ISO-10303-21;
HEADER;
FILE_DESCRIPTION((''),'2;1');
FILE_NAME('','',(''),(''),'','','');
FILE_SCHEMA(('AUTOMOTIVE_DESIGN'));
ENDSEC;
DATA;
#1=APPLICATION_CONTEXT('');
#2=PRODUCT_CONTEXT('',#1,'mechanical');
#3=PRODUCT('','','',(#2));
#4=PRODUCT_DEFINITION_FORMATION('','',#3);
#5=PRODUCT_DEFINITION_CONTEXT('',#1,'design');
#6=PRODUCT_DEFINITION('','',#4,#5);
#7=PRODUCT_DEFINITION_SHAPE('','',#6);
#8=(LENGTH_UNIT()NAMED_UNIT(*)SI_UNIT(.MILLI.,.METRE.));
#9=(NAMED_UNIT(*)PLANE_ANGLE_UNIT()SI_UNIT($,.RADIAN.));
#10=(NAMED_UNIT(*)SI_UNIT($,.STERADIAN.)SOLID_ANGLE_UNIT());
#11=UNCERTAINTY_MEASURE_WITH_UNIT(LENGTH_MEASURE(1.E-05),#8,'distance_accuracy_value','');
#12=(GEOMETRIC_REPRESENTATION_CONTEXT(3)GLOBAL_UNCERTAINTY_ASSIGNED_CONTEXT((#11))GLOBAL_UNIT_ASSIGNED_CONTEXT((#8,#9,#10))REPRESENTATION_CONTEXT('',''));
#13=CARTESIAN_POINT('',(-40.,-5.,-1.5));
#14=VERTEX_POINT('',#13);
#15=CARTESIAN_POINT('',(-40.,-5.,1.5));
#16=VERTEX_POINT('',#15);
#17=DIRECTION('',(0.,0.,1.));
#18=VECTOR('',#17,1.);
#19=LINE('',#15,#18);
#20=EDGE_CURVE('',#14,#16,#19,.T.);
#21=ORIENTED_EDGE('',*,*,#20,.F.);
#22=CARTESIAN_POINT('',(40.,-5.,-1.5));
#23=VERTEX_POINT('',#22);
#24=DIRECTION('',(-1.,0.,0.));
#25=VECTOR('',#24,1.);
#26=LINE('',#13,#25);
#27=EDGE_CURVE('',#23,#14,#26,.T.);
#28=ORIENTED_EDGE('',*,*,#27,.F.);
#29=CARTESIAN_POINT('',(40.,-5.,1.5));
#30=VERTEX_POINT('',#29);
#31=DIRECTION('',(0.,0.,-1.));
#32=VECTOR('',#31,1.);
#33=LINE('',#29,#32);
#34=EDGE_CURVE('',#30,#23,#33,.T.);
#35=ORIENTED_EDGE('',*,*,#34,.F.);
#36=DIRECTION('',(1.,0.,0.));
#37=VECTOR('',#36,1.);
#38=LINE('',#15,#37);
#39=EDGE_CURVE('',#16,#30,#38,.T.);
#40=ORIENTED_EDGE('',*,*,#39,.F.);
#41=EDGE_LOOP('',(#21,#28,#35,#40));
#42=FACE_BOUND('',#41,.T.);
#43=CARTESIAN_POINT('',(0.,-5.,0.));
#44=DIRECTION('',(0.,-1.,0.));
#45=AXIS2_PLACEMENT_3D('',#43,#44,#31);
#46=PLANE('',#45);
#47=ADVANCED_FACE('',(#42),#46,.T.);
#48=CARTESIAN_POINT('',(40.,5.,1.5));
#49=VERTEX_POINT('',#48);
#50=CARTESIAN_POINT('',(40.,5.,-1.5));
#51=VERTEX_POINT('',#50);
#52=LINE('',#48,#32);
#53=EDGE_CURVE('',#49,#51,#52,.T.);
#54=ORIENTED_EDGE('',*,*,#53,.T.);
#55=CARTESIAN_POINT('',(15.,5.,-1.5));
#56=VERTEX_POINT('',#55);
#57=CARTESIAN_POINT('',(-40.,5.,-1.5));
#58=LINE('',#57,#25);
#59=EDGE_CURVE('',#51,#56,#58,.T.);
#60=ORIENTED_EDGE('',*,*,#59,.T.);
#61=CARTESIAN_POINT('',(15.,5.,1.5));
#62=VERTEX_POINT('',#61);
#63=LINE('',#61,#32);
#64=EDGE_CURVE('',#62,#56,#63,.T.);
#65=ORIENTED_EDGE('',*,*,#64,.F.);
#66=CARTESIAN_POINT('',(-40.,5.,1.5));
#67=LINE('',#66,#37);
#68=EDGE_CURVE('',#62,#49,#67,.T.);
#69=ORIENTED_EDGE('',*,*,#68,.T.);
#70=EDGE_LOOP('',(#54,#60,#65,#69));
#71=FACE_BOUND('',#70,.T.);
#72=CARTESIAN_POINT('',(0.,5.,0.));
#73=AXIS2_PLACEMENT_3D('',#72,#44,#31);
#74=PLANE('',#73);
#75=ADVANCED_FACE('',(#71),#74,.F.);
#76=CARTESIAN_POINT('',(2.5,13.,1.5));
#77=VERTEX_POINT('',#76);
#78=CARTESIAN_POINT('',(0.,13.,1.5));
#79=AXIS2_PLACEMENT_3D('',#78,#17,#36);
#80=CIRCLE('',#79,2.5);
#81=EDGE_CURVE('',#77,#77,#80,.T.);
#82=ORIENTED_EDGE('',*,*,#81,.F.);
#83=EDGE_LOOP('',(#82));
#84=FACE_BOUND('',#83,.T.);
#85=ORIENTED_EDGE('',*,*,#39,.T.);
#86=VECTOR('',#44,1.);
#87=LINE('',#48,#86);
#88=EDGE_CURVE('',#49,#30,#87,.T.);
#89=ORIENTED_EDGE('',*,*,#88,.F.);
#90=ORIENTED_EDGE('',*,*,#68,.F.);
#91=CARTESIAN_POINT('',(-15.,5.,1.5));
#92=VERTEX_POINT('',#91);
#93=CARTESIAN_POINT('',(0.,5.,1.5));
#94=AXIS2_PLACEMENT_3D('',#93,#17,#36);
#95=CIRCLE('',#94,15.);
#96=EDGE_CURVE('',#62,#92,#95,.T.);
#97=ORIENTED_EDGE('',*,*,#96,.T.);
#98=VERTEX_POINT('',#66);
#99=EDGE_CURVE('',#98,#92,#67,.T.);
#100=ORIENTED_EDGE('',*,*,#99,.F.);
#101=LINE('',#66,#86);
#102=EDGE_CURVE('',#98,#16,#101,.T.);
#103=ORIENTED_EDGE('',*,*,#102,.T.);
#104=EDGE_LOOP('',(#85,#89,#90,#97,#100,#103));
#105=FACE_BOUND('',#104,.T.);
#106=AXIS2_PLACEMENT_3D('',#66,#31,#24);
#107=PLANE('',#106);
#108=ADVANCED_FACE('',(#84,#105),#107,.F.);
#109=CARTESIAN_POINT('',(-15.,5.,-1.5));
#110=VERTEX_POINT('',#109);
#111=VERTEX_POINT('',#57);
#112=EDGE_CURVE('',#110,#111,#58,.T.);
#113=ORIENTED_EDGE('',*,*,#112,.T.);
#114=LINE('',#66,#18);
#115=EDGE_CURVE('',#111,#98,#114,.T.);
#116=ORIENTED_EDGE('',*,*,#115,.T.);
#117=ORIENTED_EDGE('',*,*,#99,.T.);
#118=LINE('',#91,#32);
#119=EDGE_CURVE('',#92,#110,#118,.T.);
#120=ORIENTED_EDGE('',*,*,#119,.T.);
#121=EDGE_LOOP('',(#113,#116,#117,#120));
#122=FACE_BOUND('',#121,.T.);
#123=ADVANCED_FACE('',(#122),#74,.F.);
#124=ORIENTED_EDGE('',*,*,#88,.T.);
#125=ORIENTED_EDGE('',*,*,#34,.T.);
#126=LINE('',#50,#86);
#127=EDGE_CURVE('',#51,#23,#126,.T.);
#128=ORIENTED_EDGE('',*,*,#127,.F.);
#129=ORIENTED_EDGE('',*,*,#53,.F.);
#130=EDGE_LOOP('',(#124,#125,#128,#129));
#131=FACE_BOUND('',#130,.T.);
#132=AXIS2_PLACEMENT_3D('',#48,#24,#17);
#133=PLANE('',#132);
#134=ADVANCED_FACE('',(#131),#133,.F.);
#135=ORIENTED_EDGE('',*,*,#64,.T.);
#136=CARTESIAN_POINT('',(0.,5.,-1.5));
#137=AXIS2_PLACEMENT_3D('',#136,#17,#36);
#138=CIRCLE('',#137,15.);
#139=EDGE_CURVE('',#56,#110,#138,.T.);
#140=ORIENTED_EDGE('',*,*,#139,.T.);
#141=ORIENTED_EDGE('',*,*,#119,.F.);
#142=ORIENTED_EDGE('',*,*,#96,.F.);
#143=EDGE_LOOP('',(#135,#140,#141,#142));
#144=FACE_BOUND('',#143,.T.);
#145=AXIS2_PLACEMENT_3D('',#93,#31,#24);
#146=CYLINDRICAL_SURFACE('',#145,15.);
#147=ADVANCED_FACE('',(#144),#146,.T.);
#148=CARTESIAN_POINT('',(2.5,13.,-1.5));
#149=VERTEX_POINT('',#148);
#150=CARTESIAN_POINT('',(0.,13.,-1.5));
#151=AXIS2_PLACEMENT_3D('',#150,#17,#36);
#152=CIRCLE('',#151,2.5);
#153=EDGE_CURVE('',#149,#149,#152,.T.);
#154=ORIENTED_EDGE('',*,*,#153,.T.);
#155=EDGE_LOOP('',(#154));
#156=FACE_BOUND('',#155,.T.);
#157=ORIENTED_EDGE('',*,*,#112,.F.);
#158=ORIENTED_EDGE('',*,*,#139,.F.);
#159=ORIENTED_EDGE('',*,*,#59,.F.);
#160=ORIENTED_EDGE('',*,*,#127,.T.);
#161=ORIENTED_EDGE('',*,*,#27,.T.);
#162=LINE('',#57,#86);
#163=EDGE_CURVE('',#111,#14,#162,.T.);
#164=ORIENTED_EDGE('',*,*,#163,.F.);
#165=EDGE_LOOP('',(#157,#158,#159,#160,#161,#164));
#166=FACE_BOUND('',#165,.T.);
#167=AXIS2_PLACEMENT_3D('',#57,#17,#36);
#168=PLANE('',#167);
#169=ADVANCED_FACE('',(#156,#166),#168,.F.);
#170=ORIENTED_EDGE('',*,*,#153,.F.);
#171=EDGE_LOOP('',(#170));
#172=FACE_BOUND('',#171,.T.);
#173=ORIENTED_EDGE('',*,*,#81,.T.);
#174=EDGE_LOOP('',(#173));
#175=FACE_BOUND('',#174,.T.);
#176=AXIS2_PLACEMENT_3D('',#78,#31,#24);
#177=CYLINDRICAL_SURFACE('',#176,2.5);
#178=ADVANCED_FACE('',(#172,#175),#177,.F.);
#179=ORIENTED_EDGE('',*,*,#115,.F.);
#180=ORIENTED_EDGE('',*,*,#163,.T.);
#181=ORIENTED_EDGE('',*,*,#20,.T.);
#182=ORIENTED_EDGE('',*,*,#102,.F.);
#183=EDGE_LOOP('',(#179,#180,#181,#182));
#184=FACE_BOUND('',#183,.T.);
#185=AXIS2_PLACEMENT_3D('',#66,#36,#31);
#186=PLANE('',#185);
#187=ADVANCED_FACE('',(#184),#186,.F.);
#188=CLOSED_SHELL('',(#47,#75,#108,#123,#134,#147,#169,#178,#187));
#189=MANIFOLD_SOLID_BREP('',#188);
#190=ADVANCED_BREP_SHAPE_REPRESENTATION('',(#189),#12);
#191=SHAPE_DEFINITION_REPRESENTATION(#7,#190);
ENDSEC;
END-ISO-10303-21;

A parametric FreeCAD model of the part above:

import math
import FreeCAD as App
import Part
import Sketcher

doc = App.newDocument("Part")
params = doc.addObject("Spreadsheet::Sheet", "Params")
for row, (alias, value) in enumerate([
    ("sketch1_width", "80 mm"),
    ("sketch1_height", "3 mm"),
    ("pad1_length", "10 mm"),
    ("sketch2_diameter", "5 mm"),
    ("sketch2_radius", "15 mm"),
    ("pad2_length", "3 mm"),
], start=1):
    params.set(f"A{row}", alias)
    params.set(f"B{row}", "=" + value)
    params.setAlias(f"B{row}", alias)

body = doc.addObject("PartDesign::Body", "Body")

# Sketch on XZ plane
sketch1 = body.newObject("Sketcher::SketchObject", "Sketch")
sketch1.AttachmentSupport = (doc.getObject("XZ_Plane"), [""])
sketch1.MapMode = "FlatFace"
sketch1.addGeometry(Part.LineSegment(App.Vector(-40, -1.5, 0), App.Vector(-40, 1.5, 0)), False)
sketch1.addGeometry(Part.LineSegment(App.Vector(-40, 1.5, 0), App.Vector(40, 1.5, 0)), False)
sketch1.addGeometry(Part.LineSegment(App.Vector(40, 1.5, 0), App.Vector(40, -1.5, 0)), False)
sketch1.addGeometry(Part.LineSegment(App.Vector(40, -1.5, 0), App.Vector(-40, -1.5, 0)), False)
sketch1.addConstraint(Sketcher.Constraint("Coincident", 0, 2, 1, 1))
sketch1.addConstraint(Sketcher.Constraint("Coincident", 1, 2, 2, 1))
sketch1.addConstraint(Sketcher.Constraint("Coincident", 2, 2, 3, 1))
sketch1.addConstraint(Sketcher.Constraint("Coincident", 3, 2, 0, 1))
sketch1.addConstraint(Sketcher.Constraint("Vertical", 0))
sketch1.addConstraint(Sketcher.Constraint("Horizontal", 1))
sketch1.addConstraint(Sketcher.Constraint("Vertical", 2))
sketch1.addConstraint(Sketcher.Constraint("Horizontal", 3))
sketch1.addConstraint(Sketcher.Constraint("Symmetric", 0, 2, 2, 2, -1, 1))
sketch1.addConstraint(Sketcher.Constraint("DistanceX", 1, 1, 1, 2, 80.0))
sketch1.addConstraint(Sketcher.Constraint("DistanceY", 0, 1, 0, 2, 3.0))
sketch1.setExpression("Constraints[9]", "Params.sketch1_width")
sketch1.setExpression("Constraints[10]", "Params.sketch1_height")
pad1 = body.newObject("PartDesign::Pad", "Pad")
pad1.Profile = sketch1
pad1.setExpression("Length", "Params.pad1_length")
pad1.Midplane = True

# Sketch on XY plane
sketch2 = body.newObject("Sketcher::SketchObject", "Sketch001")
sketch2.AttachmentSupport = (doc.getObject("XY_Plane"), [""])
sketch2.MapMode = "FlatFace"
sketch2.addGeometry(Part.LineSegment(App.Vector(-15, 5, 0), App.Vector(15, 5, 0)), False)
sketch2.addGeometry(Part.ArcOfCircle(Part.Circle(App.Vector(0, 5, 0), App.Vector(0, 0, 1), 15), math.radians(0), math.radians(180)), False)
sketch2.addGeometry(Part.Circle(App.Vector(0, 13, 0), App.Vector(0, 0, 1), 2.5), False)
sketch2.addConstraint(Sketcher.Constraint("Coincident", 0, 1, 1, 2))
sketch2.addConstraint(Sketcher.Constraint("Coincident", 1, 1, 0, 2))
sketch2.addConstraint(Sketcher.Constraint("Horizontal", 0))
sketch2.addConstraint(Sketcher.Constraint("PointOnObject", 1, 3, -2))
sketch2.addConstraint(Sketcher.Constraint("PointOnObject", 2, 3, -2))
sketch2.addConstraint(Sketcher.Constraint("Horizontal", 1, 3, 0, 1))
sketch2.addConstraint(Sketcher.Constraint("Diameter", 2, 5.0))
sketch2.addConstraint(Sketcher.Constraint("Radius", 1, 15.0))
sketch2.addConstraint(Sketcher.Constraint("DistanceY", -1, 1, 1, 3, 5.0))
sketch2.addConstraint(Sketcher.Constraint("DistanceY", -1, 1, 2, 3, 13.0))
sketch2.setExpression("Constraints[6]", "Params.sketch2_diameter")
sketch2.setExpression("Constraints[7]", "Params.sketch2_radius")
pad2 = body.newObject("PartDesign::Pad", "Pad001")
pad2.Profile = sketch2
pad2.setExpression("Length", "Params.pad2_length")
pad2.Midplane = True

doc.recompute()
